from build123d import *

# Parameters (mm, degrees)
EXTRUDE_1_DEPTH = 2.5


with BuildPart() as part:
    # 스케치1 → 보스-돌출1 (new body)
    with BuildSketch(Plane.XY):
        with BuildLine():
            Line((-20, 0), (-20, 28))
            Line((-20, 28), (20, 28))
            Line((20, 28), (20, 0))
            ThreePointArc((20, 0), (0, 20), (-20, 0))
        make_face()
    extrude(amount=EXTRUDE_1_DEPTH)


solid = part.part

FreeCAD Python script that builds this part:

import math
import FreeCAD as App
import Part
import Sketcher
from FreeCAD import Vector
Q = App.Units.Quantity

doc = App.newDocument("Part")
body = doc.addObject("PartDesign::Body", "Body")

# Sketch on XY plane
sketch1 = body.newObject("Sketcher::SketchObject", "Sketch")
sketch1.AttachmentSupport = (doc.getObject("XY_Plane"), [""])
sketch1.MapMode = "FlatFace"
sketch1.addGeometry(Part.LineSegment(Vector(-20, 28, 0), Vector(-20, 0, 0)), False)
sketch1.addGeometry(Part.ArcOfCircle(Part.Circle(Vector(0, 0, 0), Vector(0, 0, 1), 20), math.radians(0), math.radians(180)), False)
sketch1.addGeometry(Part.LineSegment(Vector(20, 0, 0), Vector(20, 28, 0)), False)
sketch1.addGeometry(Part.LineSegment(Vector(20, 28, 0), Vector(-20, 28, 0)), False)
sketch1.addConstraint(Sketcher.Constraint("Tangent", 0, 2, 1, 2))
sketch1.addConstraint(Sketcher.Constraint("Tangent", 1, 1, 2, 1))
sketch1.addConstraint(Sketcher.Constraint("Coincident", 2, 2, 3, 1))
sketch1.addConstraint(Sketcher.Constraint("Coincident", 3, 2, 0, 1))
sketch1.addConstraint(Sketcher.Constraint("Vertical", 0))
sketch1.addConstraint(Sketcher.Constraint("Vertical", 2))
sketch1.addConstraint(Sketcher.Constraint("Horizontal", 3))
sketch1.addConstraint(Sketcher.Constraint("Coincident", 1, 3, -1, 1))
sketch1.addConstraint(Sketcher.Constraint("Radius", 1, Q("20 mm")))
sketch1.addConstraint(Sketcher.Constraint("DistanceY", 0, 2, 0, 1, Q("28 mm")))
pad1 = body.newObject("PartDesign::Pad", "Pad")
pad1.Profile = sketch1
pad1.Length = 2.5

doc.recompute()
